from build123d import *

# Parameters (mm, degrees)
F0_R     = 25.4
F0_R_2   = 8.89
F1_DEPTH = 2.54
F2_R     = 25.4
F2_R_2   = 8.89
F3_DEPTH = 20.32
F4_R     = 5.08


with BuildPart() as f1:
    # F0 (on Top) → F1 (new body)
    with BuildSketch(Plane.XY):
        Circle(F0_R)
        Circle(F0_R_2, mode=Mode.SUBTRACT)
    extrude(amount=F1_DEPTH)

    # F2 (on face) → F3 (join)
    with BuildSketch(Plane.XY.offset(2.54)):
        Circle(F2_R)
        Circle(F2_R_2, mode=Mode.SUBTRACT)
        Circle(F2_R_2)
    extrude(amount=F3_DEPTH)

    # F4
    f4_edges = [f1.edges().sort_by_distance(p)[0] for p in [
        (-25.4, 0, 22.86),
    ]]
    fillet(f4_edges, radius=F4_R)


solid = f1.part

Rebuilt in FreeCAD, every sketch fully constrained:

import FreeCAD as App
import Part
import Sketcher
from FreeCAD import Vector
Q = App.Units.Quantity


def edges_at(feature, points):
    """Names of the edges that pass closest to the given points."""
    edges = feature.Shape.Edges
    near = lambda p: min(range(len(edges)), key=lambda i: edges[i].distToShape(Part.Vertex(*p))[0])
    return sorted({f"Edge{near(p) + 1}" for p in points})

doc = App.newDocument("Part")
body = doc.addObject("PartDesign::Body", "Body")

# Sketch on XY plane
sketch1 = doc.addObject("Sketcher::SketchObject", "Sketch")
body.addObject(sketch1)
sketch1.AttachmentSupport = (doc.XY_Plane, [""])
sketch1.MapMode = "FlatFace"
sketch1.addGeometry(Part.Circle(Vector(0, 0, 0), Vector(0, 0, 1), 25), False)
sketch1.addGeometry(Part.Circle(Vector(0, 0, 0), Vector(0, 0, 1), 9), False)
sketch1.addConstraint(Sketcher.Constraint("Coincident", 0, 3, -1, 1))
sketch1.addConstraint(Sketcher.Constraint("Coincident", 1, 3, -1, 1))
sketch1.addConstraint(Sketcher.Constraint("Diameter", 0, Q("2 in")))
sketch1.addConstraint(Sketcher.Constraint("Diameter", 1, Q("0.7 in")))
pad1 = doc.addObject("PartDesign::Pad", "Pad")
body.addObject(pad1)
pad1.Profile = sketch1
pad1.Length = Q("0.1 in")

# Sketch on XY plane
sketch2 = doc.addObject("Sketcher::SketchObject", "Sketch001")
body.addObject(sketch2)
sketch2.AttachmentSupport = (doc.XY_Plane, [""])
sketch2.MapMode = "FlatFace"
sketch2.AttachmentOffset = App.Placement(Vector(0, 0, 0.1 * 25.4), App.Rotation())
sketch2.addGeometry(Part.Circle(Vector(0, 0, 0), Vector(0, 0, 1), 25), False)
sketch2.addConstraint(Sketcher.Constraint("Coincident", 0, 3, -1, 1))
sketch2.addConstraint(Sketcher.Constraint("Diameter", 0, Q("2 in")))
pad2 = doc.addObject("PartDesign::Pad", "Pad001")
body.addObject(pad2)
pad2.Profile = sketch2
pad2.Length = Q("0.8 in")
doc.recompute()

fillet = doc.addObject("PartDesign::Fillet", "Fillet")
body.addObject(fillet)
fillet.Base = (pad2, edges_at(pad2, [(-25.4, 0, 22.86)]))
fillet.Radius = Q("0.2 in")

doc.recompute()
